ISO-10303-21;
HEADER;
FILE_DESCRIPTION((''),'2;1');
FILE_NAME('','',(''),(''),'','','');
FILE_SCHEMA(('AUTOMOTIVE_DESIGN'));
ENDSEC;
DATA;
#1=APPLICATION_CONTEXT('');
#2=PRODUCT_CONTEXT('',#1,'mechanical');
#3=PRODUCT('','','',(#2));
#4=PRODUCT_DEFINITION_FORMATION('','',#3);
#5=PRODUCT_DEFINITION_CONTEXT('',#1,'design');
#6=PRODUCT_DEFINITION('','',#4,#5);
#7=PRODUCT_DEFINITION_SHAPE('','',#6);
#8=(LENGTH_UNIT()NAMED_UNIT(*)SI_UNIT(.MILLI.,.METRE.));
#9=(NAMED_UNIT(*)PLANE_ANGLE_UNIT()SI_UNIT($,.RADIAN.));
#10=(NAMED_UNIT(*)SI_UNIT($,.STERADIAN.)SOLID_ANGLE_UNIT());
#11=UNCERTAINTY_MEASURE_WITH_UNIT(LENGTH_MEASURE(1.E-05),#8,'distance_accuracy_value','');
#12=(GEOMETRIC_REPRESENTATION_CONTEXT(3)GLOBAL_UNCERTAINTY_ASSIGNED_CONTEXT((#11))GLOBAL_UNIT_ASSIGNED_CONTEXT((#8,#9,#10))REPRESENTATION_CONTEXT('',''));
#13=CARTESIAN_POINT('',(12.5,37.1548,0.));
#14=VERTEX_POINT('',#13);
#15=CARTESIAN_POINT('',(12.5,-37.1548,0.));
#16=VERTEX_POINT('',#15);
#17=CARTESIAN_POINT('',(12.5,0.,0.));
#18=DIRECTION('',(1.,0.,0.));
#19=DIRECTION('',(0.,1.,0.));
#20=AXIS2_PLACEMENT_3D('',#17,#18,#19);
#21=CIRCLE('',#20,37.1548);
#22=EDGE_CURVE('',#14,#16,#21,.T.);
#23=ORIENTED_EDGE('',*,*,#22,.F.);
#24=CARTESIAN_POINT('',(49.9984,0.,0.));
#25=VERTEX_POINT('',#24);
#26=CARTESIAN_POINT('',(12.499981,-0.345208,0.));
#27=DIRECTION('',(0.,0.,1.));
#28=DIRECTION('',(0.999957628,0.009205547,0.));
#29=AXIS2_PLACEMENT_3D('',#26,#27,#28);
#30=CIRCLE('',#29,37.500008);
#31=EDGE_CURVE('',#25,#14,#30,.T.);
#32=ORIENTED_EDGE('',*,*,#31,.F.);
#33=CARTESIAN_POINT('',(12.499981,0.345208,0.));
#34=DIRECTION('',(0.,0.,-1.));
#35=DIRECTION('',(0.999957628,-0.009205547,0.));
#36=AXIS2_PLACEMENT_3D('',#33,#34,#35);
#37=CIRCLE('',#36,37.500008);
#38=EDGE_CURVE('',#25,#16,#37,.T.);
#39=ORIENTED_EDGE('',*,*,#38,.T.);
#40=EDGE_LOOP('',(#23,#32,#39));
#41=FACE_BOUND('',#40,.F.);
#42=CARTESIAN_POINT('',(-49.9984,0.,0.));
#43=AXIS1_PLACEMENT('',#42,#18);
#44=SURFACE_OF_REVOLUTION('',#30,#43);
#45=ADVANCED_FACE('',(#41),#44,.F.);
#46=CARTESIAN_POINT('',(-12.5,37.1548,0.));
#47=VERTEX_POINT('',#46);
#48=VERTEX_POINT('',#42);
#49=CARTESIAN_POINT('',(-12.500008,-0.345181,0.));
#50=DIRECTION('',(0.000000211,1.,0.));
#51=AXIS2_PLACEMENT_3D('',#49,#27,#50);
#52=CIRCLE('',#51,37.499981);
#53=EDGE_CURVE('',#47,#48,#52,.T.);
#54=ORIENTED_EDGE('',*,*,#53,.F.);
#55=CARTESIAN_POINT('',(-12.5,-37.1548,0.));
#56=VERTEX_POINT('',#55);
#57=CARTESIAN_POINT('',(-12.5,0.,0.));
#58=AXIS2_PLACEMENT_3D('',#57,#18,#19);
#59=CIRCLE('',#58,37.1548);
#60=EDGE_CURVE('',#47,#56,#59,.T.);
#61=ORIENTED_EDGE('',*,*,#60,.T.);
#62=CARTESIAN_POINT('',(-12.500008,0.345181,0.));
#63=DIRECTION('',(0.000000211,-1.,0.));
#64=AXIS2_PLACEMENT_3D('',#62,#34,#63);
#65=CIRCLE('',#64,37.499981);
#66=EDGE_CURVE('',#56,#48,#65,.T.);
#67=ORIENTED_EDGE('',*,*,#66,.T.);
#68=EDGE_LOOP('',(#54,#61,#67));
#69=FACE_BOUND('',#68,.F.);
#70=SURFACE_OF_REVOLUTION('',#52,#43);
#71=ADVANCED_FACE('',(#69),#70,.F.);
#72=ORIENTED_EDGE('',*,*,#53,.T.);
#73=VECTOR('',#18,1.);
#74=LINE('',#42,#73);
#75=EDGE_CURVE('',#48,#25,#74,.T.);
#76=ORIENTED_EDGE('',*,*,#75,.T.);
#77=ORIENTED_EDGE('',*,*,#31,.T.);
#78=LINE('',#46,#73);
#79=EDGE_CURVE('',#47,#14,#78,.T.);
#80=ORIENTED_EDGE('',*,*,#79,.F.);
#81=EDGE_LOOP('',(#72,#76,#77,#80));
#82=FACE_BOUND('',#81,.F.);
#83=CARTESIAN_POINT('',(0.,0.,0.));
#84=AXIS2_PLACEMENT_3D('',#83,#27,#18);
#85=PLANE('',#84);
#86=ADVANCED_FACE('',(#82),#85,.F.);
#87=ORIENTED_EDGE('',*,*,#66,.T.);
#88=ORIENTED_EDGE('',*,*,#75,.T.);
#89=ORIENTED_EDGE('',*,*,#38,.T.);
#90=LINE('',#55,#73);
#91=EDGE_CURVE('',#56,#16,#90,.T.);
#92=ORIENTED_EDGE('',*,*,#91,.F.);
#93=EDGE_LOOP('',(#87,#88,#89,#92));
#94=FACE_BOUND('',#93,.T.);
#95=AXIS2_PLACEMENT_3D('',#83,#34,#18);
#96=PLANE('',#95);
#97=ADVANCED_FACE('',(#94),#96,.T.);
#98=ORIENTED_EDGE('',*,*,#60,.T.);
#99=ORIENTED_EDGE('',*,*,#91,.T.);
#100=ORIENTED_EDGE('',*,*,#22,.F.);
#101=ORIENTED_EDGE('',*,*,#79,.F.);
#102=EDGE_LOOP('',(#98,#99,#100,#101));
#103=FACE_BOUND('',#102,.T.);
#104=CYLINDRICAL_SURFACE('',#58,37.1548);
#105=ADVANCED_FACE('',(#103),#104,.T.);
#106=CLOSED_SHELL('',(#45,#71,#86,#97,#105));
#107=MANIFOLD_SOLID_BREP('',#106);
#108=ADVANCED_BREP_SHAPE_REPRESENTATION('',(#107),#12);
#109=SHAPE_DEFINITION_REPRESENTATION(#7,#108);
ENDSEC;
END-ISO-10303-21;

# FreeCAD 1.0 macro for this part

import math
import FreeCAD as App
import Part
import Sketcher

doc = App.newDocument("Part")
body = doc.addObject("PartDesign::Body", "Body")

# Sketch on XY plane
sketch1 = doc.addObject("Sketcher::SketchObject", "Sketch")
body.addObject(sketch1)
sketch1.AttachmentSupport = (doc.XY_Plane, [""])
sketch1.MapMode = "FlatFace"
sketch1.addGeometry(Part.LineSegment(App.Vector(12, 37, 0), App.Vector(-12, 37, 0)), False)
sketch1.addGeometry(Part.ArcOfCircle(Part.Circle(App.Vector(-12, 0, 0), App.Vector(0, 0, 1), 38), math.radians(90), math.radians(179)), False)
sketch1.addGeometry(Part.LineSegment(App.Vector(-50, 0, 0), App.Vector(50, 0, 0)), False)
sketch1.addGeometry(Part.ArcOfCircle(Part.Circle(App.Vector(12, 0, 0), App.Vector(0, 0, 1), 37), math.radians(1), math.radians(90)), False)
sketch1.addConstraint(Sketcher.Constraint("Tangent", 0, 2, 1, 1))
sketch1.addConstraint(Sketcher.Constraint("Coincident", 1, 2, 2, 1))
sketch1.addConstraint(Sketcher.Constraint("Coincident", 2, 2, 3, 1))
sketch1.addConstraint(Sketcher.Constraint("Tangent", 3, 2, 0, 1))
sketch1.addConstraint(Sketcher.Constraint("Horizontal", 0))
sketch1.addConstraint(Sketcher.Constraint("Horizontal", 2))
sketch1.addConstraint(Sketcher.Constraint("Equal", 1, 3))
sketch1.addConstraint(Sketcher.Constraint("Symmetric", 1, 2, 2, 2, -1, 1))
sketch1.addConstraint(Sketcher.Constraint("Radius", 1, 37.5))
sketch1.addConstraint(Sketcher.Constraint("DistanceX", 0, 2, 0, 1, 25.0))
sketch1.addConstraint(Sketcher.Constraint("DistanceX", 2, 1, 2, 2, 99.9968))
revolution = doc.addObject("PartDesign::Revolution", "Revolution")
body.addObject(revolution)
revolution.Profile = sketch1
revolution.ReferenceAxis = (sketch1, ["H_Axis"])
revolution.Angle = 180

doc.recompute()
